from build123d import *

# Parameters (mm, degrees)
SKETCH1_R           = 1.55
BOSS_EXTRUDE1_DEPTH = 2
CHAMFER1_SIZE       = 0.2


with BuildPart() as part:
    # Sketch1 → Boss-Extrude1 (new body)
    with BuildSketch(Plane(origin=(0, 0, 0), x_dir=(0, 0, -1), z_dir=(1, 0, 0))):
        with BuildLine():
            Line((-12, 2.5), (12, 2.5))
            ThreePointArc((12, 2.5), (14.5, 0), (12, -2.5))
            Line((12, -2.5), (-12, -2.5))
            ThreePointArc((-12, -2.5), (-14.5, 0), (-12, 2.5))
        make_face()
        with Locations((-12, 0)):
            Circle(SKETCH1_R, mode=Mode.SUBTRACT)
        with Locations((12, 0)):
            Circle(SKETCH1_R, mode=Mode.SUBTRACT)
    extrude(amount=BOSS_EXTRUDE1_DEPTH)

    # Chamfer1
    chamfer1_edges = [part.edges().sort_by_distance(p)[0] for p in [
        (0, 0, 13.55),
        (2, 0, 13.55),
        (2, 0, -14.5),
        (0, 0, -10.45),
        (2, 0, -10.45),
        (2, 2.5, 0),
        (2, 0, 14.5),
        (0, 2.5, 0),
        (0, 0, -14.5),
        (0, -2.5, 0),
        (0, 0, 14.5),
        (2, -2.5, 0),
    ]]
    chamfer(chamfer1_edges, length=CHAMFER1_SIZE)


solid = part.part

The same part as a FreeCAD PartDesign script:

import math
import FreeCAD as App
import Part
import Sketcher


def edges_at(feature, points):
    """Names of the edges that pass closest to the given points."""
    edges = feature.Shape.Edges
    near = lambda p: min(range(len(edges)), key=lambda i: edges[i].distToShape(Part.Vertex(*p))[0])
    return sorted({f"Edge{near(p) + 1}" for p in points})

doc = App.newDocument("Part")
body = doc.addObject("PartDesign::Body", "Body")

sketch1 = body.newObject("Sketcher::SketchObject", "Sketch")
sketch1.AttachmentSupport = (doc.getObject("YZ_Plane"), [""])
sketch1.MapMode = "FlatFace"
sketch1.addGeometry([
    Part.LineSegment(App.Vector(2.5, -12, 0), App.Vector(2.5, 12, 0)),
    Part.ArcOfCircle(Part.Circle(App.Vector(0, 12, 0), App.Vector(0, 0, 1), 2.5), math.radians(0), math.radians(180)),
    Part.LineSegment(App.Vector(-2.5, 12, 0), App.Vector(-2.5, -12, 0)),
    Part.ArcOfCircle(Part.Circle(App.Vector(0, -12, 0), App.Vector(0, 0, 1), 2.5), math.radians(180), math.radians(360)),
    Part.Circle(App.Vector(0, -12, 0), App.Vector(0, 0, 1), 1.6),
    Part.Circle(App.Vector(0, 12, 0), App.Vector(0, 0, 1), 1.6),
], False)
sketch1.addConstraint([
    Sketcher.Constraint("Tangent", 0, 2, 1, 1),
    Sketcher.Constraint("Tangent", 1, 2, 2, 1),
    Sketcher.Constraint("Tangent", 2, 2, 3, 1),
    Sketcher.Constraint("Tangent", 3, 2, 0, 1),
    Sketcher.Constraint("Vertical", 0),
    Sketcher.Constraint("Vertical", 2),
    Sketcher.Constraint("Coincident", 4, 3, 3, 3),
    Sketcher.Constraint("Coincident", 5, 3, 1, 3),
    Sketcher.Constraint("Equal", 4, 5),
    Sketcher.Constraint("Symmetric", 1, 3, 3, 3, -1, 1),
    Sketcher.Constraint("Diameter", 4, 3.1),
    Sketcher.Constraint("Radius", 1, 2.5),
    Sketcher.Constraint("DistanceY", 0, 1, 0, 2, 24.0),
])
pad1 = body.newObject("PartDesign::Pad", "Pad")
pad1.Profile = sketch1
pad1.Length = 2
doc.recompute()

chamfer = body.newObject("PartDesign::Chamfer", "Chamfer")
chamfer.Base = (pad1, edges_at(pad1, [
    (0, 0, 13.55),
    (2, 0, 13.55),
    (2, 0, -14.5),
    (0, 0, -10.45),
    (2, 0, -10.45),
    (2, 2.5, 0),
    (2, 0, 14.5),
    (0, 2.5, 0),
    (0, 0, -14.5),
    (0, -2.5, 0),
    (0, 0, 14.5),
    (2, -2.5, 0),
]))
chamfer.Size = 0.2

doc.recompute()
